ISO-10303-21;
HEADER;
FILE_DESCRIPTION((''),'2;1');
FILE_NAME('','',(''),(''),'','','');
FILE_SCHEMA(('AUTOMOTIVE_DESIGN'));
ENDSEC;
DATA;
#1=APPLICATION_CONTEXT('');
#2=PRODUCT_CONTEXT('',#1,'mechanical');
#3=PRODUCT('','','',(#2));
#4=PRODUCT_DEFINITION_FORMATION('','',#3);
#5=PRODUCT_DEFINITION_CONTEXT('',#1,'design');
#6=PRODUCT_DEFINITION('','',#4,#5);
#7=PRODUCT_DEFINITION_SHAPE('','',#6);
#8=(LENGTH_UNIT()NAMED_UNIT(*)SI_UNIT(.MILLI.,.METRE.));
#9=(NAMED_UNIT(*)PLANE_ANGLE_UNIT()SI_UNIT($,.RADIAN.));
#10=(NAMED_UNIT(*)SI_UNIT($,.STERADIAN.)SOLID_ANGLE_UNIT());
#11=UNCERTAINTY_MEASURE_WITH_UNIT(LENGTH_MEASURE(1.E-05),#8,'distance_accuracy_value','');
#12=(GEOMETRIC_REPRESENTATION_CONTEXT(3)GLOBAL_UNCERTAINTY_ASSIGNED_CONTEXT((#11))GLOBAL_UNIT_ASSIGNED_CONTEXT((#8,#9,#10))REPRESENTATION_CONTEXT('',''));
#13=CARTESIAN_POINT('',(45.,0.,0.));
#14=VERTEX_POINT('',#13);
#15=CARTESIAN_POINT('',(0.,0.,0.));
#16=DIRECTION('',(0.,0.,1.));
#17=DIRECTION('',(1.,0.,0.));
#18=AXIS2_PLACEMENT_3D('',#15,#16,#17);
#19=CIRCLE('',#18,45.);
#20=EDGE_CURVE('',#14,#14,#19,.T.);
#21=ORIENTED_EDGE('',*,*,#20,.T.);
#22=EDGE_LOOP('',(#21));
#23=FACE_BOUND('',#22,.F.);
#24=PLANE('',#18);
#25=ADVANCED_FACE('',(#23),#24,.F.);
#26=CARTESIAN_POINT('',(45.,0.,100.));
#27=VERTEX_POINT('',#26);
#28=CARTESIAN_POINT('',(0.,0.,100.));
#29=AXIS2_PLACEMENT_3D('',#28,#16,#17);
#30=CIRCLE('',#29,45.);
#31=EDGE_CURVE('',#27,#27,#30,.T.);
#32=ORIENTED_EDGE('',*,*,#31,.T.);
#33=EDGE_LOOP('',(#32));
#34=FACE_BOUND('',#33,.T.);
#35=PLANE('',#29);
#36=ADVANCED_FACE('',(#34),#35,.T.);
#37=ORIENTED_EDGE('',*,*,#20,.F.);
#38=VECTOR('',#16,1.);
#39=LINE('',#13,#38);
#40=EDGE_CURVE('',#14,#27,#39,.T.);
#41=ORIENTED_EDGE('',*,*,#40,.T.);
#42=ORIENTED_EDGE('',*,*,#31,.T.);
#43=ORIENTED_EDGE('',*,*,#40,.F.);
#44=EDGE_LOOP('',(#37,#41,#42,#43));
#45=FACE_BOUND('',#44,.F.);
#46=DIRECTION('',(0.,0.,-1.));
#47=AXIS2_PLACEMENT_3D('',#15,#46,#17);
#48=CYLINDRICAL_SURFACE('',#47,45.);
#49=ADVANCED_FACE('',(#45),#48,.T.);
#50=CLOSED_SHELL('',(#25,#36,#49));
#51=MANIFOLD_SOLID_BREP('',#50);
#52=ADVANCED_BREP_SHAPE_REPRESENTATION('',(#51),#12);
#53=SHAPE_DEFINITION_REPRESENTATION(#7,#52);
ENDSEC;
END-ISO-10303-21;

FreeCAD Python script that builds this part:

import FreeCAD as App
import Part
import Sketcher

doc = App.newDocument("Part")
body = doc.addObject("PartDesign::Body", "Body")

sketch1 = body.newObject("Sketcher::SketchObject", "Sketch")
sketch1.AttachmentSupport = (doc.getObject("XY_Plane"), [""])
sketch1.MapMode = "FlatFace"
sketch1.addGeometry(Part.Circle(App.Vector(0, 0, 0), App.Vector(0, 0, 1), 45), False)
sketch1.addConstraint([
    Sketcher.Constraint("Coincident", 0, 3, -1, 1),
    Sketcher.Constraint("Diameter", 0, 90.0),
])
pad1 = body.newObject("PartDesign::Pad", "Pad")
pad1.Profile = sketch1
pad1.Length = 100

doc.recompute()
